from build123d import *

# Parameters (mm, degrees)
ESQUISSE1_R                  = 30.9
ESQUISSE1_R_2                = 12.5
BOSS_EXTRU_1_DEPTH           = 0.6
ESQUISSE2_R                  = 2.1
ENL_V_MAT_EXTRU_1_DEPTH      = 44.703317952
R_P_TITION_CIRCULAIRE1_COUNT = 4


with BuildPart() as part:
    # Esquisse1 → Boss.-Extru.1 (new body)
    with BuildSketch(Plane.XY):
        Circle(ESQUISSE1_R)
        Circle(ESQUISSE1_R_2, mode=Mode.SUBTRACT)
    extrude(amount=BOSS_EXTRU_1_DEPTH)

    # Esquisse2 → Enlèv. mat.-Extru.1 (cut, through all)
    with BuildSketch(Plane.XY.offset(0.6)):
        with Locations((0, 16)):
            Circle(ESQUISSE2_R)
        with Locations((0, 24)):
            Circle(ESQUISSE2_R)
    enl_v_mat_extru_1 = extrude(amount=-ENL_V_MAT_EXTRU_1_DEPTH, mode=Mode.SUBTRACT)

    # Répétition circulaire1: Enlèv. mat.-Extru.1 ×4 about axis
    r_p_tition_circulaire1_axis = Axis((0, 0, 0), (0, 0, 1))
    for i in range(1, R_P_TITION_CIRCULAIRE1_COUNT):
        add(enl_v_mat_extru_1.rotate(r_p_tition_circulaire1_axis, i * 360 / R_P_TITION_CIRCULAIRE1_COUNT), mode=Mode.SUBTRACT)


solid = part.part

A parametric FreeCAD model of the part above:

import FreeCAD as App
import Part
import Sketcher
from FreeCAD import Vector

doc = App.newDocument("Part")
params = doc.addObject("Spreadsheet::Sheet", "Params")
for row, (alias, value) in enumerate([
    ("sketch1_diameter", "25 mm"),
    ("sketch1_diameter2", "61.8 mm"),
    ("pad1_length", "0.6 mm"),
    ("sketch2_diameter", "4.2 mm"),
], start=1):
    params.set(f"A{row}", alias)
    params.set(f"B{row}", "=" + value)
    params.setAlias(f"B{row}", alias)

body = doc.addObject("PartDesign::Body", "Body")

sketch1 = body.newObject("Sketcher::SketchObject", "Sketch")
sketch1.AttachmentSupport = (doc.getObject("XY_Plane"), [""])
sketch1.MapMode = "FlatFace"
sketch1.addGeometry(Part.Circle(Vector(0, 0, 0), Vector(0, 0, 1), 31), False)
sketch1.addGeometry(Part.Circle(Vector(0, 0, 0), Vector(0, 0, 1), 12), False)
sketch1.addConstraint(Sketcher.Constraint("Coincident", 0, 3, -1, 1))
sketch1.addConstraint(Sketcher.Constraint("Coincident", 1, 3, -1, 1))
sketch1.addConstraint(Sketcher.Constraint("Diameter", 1, 25.0))
sketch1.addConstraint(Sketcher.Constraint("Diameter", 0, 61.8))
sketch1.setExpression("Constraints[2]", "Params.sketch1_diameter")
sketch1.setExpression("Constraints[3]", "Params.sketch1_diameter2")
pad1 = body.newObject("PartDesign::Pad", "Pad")
pad1.Profile = sketch1
pad1.setExpression("Length", "Params.pad1_length")

sketch2 = body.newObject("Sketcher::SketchObject", "Sketch001")
sketch2.AttachmentSupport = (doc.getObject("XY_Plane"), [""])
sketch2.MapMode = "FlatFace"
sketch2.AttachmentOffset = App.Placement(Vector(0, 0, 0.6), App.Rotation())
sketch2.addGeometry(Part.Circle(Vector(0, 16, 0), Vector(0, 0, 1), 2.1), False)
sketch2.addGeometry(Part.Circle(Vector(0, 24, 0), Vector(0, 0, 1), 2.1), False)
sketch2.addConstraint(Sketcher.Constraint("Equal", 0, 1))
sketch2.addConstraint(Sketcher.Constraint("PointOnObject", 0, 3, -2))
sketch2.addConstraint(Sketcher.Constraint("PointOnObject", 1, 3, -2))
sketch2.addConstraint(Sketcher.Constraint("Diameter", 0, 4.2))
sketch2.addConstraint(Sketcher.Constraint("DistanceY", -1, 1, 0, 3, 16.0))
sketch2.addConstraint(Sketcher.Constraint("DistanceY", -1, 1, 1, 3, 24.0))
sketch2.setExpression("Constraints[3]", "Params.sketch2_diameter")
pocket1 = body.newObject("PartDesign::Pocket", "Pocket")
pocket1.Profile = sketch2
pocket1.Type = "ThroughAll"
doc.recompute()

polarpattern = body.newObject("PartDesign::PolarPattern", "PolarPattern")
polarpattern.Originals = [pocket1]
polarpattern.Axis = (doc.getObject("Z_Axis"), [""])
polarpattern.Angle = 360
polarpattern.Occurrences = 4
body.Tip = polarpattern

doc.recompute()
